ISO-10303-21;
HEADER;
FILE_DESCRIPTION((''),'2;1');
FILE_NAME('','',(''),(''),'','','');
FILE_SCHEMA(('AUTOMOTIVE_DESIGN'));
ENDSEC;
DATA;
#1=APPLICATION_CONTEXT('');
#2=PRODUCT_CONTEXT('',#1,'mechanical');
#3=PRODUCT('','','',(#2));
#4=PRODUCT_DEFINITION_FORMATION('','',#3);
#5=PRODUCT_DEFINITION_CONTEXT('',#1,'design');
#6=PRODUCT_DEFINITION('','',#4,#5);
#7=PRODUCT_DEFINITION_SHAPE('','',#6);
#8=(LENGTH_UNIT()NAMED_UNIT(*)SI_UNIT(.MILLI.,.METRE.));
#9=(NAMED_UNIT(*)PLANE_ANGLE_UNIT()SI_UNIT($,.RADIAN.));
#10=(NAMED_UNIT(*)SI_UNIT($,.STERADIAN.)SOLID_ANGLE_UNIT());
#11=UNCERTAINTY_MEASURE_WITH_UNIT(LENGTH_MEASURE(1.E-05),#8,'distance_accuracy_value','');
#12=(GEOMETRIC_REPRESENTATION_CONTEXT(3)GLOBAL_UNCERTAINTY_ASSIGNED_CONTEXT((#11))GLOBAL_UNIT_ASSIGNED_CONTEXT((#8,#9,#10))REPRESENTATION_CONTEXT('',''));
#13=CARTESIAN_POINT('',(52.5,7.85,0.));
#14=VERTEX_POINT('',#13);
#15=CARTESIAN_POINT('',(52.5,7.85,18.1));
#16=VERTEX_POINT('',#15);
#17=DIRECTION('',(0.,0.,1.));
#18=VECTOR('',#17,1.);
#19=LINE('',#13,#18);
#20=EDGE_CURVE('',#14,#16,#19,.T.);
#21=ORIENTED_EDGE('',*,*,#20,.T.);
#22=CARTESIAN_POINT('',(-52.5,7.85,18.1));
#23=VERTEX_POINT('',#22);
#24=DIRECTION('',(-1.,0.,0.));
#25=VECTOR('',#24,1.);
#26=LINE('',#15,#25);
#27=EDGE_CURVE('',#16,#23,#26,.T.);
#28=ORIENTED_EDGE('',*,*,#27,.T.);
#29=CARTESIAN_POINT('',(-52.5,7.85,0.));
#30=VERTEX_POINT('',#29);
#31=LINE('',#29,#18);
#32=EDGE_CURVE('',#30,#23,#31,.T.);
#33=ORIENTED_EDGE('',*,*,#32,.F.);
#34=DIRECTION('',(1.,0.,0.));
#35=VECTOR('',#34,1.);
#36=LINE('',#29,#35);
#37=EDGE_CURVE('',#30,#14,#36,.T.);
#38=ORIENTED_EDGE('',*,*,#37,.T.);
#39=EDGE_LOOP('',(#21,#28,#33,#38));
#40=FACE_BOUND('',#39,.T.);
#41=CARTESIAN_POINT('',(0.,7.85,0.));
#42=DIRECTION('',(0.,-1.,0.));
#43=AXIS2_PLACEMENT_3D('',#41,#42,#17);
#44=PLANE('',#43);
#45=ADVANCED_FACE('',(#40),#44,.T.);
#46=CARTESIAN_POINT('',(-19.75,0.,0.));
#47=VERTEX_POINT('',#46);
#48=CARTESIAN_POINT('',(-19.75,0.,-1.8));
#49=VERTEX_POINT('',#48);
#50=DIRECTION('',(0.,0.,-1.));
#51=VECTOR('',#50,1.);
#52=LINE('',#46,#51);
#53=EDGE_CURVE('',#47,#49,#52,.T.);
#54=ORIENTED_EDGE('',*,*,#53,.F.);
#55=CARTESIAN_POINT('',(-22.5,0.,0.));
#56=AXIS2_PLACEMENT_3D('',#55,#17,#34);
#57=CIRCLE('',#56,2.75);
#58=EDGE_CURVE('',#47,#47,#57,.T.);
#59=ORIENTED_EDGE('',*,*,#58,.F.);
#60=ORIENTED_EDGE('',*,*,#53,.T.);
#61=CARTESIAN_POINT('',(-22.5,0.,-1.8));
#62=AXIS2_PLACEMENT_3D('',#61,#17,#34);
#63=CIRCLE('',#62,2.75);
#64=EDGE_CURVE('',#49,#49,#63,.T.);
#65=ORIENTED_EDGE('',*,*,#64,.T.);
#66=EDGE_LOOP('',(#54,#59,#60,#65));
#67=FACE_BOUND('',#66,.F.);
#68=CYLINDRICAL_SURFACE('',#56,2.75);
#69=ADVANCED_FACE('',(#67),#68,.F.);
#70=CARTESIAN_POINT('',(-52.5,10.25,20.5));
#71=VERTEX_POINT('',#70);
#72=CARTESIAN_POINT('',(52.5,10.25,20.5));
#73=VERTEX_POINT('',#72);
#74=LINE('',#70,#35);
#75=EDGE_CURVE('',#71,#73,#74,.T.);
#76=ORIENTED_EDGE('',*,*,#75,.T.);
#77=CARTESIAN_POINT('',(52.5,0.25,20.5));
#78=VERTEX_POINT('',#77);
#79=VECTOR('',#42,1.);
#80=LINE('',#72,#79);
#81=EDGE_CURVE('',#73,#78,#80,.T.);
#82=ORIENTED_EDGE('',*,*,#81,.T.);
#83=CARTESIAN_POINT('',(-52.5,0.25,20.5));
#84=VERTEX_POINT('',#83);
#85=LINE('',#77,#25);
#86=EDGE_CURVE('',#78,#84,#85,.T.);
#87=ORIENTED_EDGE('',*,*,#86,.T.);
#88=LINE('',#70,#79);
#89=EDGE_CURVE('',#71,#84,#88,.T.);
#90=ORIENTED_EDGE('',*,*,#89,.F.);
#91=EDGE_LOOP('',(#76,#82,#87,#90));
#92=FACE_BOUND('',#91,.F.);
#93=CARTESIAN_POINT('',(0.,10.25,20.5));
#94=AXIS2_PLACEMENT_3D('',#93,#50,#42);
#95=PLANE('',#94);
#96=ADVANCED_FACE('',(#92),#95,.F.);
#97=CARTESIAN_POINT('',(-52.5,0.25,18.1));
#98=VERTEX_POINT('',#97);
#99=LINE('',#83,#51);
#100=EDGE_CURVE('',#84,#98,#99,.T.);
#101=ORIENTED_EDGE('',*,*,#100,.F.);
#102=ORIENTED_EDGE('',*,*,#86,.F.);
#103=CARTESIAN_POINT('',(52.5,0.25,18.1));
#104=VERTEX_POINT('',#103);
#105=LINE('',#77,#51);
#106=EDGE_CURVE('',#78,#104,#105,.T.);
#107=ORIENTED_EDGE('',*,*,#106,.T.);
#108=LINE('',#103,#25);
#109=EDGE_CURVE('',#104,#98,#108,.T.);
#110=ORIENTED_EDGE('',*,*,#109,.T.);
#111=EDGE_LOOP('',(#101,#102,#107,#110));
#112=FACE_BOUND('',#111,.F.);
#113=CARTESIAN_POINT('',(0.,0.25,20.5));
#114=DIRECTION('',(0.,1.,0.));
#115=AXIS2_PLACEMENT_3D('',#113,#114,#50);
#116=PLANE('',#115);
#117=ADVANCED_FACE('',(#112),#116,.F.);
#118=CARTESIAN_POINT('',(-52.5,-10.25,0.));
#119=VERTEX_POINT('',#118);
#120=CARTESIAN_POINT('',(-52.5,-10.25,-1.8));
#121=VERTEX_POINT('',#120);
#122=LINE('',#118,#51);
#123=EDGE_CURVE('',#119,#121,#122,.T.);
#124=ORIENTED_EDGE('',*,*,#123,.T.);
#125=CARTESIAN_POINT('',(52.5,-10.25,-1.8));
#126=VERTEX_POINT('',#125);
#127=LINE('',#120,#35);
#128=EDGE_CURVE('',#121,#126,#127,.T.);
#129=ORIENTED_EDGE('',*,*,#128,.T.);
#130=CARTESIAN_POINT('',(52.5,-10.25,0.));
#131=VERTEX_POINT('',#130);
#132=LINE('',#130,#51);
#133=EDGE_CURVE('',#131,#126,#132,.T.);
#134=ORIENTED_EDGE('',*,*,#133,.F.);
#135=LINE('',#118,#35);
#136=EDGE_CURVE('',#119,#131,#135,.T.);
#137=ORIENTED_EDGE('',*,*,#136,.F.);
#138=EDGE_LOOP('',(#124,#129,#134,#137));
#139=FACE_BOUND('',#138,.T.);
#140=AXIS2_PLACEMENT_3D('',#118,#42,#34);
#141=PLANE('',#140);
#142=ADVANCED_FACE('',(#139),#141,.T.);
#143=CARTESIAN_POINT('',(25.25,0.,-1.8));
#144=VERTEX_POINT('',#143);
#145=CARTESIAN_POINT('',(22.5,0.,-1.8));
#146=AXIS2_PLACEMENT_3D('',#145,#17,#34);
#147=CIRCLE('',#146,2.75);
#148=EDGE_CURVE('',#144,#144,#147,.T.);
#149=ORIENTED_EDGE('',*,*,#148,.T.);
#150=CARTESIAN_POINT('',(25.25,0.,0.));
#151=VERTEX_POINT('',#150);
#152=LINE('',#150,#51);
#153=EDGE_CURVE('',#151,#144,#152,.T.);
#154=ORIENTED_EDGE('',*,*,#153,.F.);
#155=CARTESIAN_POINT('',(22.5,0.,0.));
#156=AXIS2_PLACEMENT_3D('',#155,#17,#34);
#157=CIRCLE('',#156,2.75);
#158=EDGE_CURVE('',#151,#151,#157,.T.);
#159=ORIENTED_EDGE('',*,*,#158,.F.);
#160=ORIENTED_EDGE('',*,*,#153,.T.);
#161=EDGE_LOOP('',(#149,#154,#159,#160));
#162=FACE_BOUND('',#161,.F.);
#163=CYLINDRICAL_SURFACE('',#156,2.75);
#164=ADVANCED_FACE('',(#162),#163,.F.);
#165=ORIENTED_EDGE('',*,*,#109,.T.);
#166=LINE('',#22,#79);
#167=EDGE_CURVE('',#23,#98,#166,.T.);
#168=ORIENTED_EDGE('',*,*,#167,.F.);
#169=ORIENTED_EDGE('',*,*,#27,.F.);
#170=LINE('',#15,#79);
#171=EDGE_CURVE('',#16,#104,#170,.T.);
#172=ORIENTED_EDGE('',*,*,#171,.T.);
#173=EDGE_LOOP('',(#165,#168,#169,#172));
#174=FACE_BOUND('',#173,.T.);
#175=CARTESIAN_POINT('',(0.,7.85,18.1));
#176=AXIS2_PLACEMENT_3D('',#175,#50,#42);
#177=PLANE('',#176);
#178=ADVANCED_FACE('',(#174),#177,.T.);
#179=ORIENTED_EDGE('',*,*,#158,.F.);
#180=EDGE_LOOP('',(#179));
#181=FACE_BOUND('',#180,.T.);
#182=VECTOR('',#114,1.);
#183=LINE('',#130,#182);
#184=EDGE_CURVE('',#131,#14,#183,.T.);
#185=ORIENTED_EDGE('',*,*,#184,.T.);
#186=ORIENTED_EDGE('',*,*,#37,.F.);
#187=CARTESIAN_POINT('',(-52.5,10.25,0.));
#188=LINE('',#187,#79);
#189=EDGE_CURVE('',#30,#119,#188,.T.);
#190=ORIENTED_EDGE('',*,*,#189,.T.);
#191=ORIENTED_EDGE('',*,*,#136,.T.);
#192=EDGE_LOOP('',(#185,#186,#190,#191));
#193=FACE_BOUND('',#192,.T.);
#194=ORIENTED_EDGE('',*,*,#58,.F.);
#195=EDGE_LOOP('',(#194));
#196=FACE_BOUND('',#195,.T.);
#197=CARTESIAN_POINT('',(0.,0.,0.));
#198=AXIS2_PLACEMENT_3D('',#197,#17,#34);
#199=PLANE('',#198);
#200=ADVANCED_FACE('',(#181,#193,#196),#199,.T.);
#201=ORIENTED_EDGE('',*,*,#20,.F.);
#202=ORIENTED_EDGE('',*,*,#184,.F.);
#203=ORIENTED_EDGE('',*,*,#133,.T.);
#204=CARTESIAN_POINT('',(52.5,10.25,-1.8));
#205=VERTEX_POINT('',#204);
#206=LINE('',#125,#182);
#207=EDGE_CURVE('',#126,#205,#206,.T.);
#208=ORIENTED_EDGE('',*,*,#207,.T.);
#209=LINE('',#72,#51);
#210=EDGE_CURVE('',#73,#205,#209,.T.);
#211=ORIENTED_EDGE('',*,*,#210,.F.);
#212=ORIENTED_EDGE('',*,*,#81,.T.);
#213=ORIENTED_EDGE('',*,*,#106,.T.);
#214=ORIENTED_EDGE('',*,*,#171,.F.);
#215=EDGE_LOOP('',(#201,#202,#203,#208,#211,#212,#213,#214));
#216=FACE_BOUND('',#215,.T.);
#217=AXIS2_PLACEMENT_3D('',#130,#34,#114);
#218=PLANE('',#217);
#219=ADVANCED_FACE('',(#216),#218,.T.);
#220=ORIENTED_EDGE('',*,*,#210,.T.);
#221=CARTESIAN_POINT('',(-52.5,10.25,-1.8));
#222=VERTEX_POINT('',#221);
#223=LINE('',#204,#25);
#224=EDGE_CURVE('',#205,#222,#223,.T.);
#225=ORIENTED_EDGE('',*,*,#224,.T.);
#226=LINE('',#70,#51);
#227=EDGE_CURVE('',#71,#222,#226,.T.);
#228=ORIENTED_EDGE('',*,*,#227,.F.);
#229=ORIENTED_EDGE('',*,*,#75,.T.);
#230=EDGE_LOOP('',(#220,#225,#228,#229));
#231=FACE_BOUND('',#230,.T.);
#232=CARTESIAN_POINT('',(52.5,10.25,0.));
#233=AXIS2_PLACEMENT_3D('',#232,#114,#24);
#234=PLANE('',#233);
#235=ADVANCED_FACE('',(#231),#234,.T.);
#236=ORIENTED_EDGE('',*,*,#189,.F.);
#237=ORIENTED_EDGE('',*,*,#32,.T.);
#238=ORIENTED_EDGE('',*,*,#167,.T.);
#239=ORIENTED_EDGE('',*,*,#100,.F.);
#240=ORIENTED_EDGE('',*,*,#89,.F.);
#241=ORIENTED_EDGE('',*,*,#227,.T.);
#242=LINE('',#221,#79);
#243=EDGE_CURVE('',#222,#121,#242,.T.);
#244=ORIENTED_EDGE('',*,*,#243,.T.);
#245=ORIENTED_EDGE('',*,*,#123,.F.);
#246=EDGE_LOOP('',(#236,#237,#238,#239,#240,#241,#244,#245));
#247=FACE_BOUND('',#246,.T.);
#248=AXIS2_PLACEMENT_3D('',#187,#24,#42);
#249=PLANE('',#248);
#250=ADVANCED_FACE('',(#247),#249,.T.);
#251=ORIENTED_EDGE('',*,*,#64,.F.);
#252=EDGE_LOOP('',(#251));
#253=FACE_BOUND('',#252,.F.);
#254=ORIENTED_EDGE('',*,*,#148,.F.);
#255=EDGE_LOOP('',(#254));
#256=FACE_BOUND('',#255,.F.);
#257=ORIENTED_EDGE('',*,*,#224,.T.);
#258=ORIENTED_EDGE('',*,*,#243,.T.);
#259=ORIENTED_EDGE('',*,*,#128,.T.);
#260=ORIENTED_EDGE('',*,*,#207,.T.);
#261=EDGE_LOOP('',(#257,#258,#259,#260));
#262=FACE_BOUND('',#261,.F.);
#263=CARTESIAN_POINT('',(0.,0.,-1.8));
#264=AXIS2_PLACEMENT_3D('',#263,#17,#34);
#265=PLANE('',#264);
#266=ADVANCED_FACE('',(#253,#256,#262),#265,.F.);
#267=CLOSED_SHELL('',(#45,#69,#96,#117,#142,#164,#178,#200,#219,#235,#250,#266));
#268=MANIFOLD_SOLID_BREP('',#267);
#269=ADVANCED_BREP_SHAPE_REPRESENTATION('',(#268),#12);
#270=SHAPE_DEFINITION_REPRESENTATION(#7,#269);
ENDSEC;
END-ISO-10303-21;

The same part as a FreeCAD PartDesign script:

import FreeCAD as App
import Part
import Sketcher
Q = App.Units.Quantity


def add_polygon(sketch, points):
    """Adds a closed chain of lines whose ends are joined by coincident constraints."""
    first, n = sketch.GeometryCount, len(points)
    for a, b in zip(points, points[1:] + points[:1]):
        sketch.addGeometry(Part.LineSegment(App.Vector(*a, 0), App.Vector(*b, 0)), False)
    for i in range(n):
        sketch.addConstraint(Sketcher.Constraint("Coincident", first + i, 2, first + (i + 1) % n, 1))

doc = App.newDocument("Part")
body = doc.addObject("PartDesign::Body", "Body")

sketch1 = doc.addObject("Sketcher::SketchObject", "Sketch")
body.addObject(sketch1)
sketch1.AttachmentSupport = (doc.XY_Plane, [""])
sketch1.MapMode = "FlatFace"
add_polygon(sketch1, [(-52.5, 10.2), (-52.5, -10.2), (52.5, -10.2), (52.5, 10.2)])
sketch1.addGeometry(Part.Circle(App.Vector(-22.5, 0, 0), App.Vector(0, 0, 1), 2.8), False)
sketch1.addGeometry(Part.Circle(App.Vector(22.5, 0, 0), App.Vector(0, 0, 1), 2.8), False)
sketch1.addConstraint([
    Sketcher.Constraint("Vertical", 0),
    Sketcher.Constraint("Horizontal", 1),
    Sketcher.Constraint("Vertical", 2),
    Sketcher.Constraint("Horizontal", 3),
    Sketcher.Constraint("Equal", 4, 5),
    Sketcher.Constraint("Symmetric", 4, 3, 5, 3, -1, 1),
    Sketcher.Constraint("Symmetric", 0, 2, 2, 2, -1, 1),
    Sketcher.Constraint("PointOnObject", 4, 3, -1),
    Sketcher.Constraint("Diameter", 4, Q("5.5 mm")),
    Sketcher.Constraint("DistanceX", 1, 1, 1, 2, Q("105 mm")),
    Sketcher.Constraint("DistanceY", 0, 2, 0, 1, Q("20.5 mm")),
    Sketcher.Constraint("DistanceX", 4, 3, 5, 3, Q("45 mm")),
])
pad1 = doc.addObject("PartDesign::Pad", "Pad")
body.addObject(pad1)
pad1.Profile = sketch1
pad1.Length = 1.8
pad1.Reversed = True

sketch2 = doc.addObject("Sketcher::SketchObject", "Sketch001")
body.addObject(sketch2)
sketch2.AttachmentSupport = (doc.YZ_Plane, [""])
sketch2.MapMode = "FlatFace"
add_polygon(sketch2, [(7.8, 18.1), (7.8, 0), (10.2, 0), (10.2, 20.5), (0.2, 20.5), (0.2, 18.1)])
sketch2.addConstraint([
    Sketcher.Constraint("Vertical", 0),
    Sketcher.Constraint("Horizontal", 1),
    Sketcher.Constraint("Vertical", 2),
    Sketcher.Constraint("Horizontal", 3),
    Sketcher.Constraint("Vertical", 4),
    Sketcher.Constraint("Horizontal", 5),
    Sketcher.Constraint("PointOnObject", 0, 2, -1),
    Sketcher.Constraint("Equal", 1, 4),
    Sketcher.Constraint("DistanceX", 3, 2, 3, 1, Q("10 mm")),
    Sketcher.Constraint("DistanceX", 1, 1, 1, 2, Q("2.4 mm")),
    Sketcher.Constraint("DistanceY", 2, 1, 2, 2, Q("20.5 mm")),
    Sketcher.Constraint("DistanceX", -1, 1, 0, 2, Q("7.85 mm")),
])
pad2 = doc.addObject("PartDesign::Pad", "Pad001")
body.addObject(pad2)
pad2.Profile = sketch2
pad2.Length = 105
pad2.Midplane = True

doc.recompute()
